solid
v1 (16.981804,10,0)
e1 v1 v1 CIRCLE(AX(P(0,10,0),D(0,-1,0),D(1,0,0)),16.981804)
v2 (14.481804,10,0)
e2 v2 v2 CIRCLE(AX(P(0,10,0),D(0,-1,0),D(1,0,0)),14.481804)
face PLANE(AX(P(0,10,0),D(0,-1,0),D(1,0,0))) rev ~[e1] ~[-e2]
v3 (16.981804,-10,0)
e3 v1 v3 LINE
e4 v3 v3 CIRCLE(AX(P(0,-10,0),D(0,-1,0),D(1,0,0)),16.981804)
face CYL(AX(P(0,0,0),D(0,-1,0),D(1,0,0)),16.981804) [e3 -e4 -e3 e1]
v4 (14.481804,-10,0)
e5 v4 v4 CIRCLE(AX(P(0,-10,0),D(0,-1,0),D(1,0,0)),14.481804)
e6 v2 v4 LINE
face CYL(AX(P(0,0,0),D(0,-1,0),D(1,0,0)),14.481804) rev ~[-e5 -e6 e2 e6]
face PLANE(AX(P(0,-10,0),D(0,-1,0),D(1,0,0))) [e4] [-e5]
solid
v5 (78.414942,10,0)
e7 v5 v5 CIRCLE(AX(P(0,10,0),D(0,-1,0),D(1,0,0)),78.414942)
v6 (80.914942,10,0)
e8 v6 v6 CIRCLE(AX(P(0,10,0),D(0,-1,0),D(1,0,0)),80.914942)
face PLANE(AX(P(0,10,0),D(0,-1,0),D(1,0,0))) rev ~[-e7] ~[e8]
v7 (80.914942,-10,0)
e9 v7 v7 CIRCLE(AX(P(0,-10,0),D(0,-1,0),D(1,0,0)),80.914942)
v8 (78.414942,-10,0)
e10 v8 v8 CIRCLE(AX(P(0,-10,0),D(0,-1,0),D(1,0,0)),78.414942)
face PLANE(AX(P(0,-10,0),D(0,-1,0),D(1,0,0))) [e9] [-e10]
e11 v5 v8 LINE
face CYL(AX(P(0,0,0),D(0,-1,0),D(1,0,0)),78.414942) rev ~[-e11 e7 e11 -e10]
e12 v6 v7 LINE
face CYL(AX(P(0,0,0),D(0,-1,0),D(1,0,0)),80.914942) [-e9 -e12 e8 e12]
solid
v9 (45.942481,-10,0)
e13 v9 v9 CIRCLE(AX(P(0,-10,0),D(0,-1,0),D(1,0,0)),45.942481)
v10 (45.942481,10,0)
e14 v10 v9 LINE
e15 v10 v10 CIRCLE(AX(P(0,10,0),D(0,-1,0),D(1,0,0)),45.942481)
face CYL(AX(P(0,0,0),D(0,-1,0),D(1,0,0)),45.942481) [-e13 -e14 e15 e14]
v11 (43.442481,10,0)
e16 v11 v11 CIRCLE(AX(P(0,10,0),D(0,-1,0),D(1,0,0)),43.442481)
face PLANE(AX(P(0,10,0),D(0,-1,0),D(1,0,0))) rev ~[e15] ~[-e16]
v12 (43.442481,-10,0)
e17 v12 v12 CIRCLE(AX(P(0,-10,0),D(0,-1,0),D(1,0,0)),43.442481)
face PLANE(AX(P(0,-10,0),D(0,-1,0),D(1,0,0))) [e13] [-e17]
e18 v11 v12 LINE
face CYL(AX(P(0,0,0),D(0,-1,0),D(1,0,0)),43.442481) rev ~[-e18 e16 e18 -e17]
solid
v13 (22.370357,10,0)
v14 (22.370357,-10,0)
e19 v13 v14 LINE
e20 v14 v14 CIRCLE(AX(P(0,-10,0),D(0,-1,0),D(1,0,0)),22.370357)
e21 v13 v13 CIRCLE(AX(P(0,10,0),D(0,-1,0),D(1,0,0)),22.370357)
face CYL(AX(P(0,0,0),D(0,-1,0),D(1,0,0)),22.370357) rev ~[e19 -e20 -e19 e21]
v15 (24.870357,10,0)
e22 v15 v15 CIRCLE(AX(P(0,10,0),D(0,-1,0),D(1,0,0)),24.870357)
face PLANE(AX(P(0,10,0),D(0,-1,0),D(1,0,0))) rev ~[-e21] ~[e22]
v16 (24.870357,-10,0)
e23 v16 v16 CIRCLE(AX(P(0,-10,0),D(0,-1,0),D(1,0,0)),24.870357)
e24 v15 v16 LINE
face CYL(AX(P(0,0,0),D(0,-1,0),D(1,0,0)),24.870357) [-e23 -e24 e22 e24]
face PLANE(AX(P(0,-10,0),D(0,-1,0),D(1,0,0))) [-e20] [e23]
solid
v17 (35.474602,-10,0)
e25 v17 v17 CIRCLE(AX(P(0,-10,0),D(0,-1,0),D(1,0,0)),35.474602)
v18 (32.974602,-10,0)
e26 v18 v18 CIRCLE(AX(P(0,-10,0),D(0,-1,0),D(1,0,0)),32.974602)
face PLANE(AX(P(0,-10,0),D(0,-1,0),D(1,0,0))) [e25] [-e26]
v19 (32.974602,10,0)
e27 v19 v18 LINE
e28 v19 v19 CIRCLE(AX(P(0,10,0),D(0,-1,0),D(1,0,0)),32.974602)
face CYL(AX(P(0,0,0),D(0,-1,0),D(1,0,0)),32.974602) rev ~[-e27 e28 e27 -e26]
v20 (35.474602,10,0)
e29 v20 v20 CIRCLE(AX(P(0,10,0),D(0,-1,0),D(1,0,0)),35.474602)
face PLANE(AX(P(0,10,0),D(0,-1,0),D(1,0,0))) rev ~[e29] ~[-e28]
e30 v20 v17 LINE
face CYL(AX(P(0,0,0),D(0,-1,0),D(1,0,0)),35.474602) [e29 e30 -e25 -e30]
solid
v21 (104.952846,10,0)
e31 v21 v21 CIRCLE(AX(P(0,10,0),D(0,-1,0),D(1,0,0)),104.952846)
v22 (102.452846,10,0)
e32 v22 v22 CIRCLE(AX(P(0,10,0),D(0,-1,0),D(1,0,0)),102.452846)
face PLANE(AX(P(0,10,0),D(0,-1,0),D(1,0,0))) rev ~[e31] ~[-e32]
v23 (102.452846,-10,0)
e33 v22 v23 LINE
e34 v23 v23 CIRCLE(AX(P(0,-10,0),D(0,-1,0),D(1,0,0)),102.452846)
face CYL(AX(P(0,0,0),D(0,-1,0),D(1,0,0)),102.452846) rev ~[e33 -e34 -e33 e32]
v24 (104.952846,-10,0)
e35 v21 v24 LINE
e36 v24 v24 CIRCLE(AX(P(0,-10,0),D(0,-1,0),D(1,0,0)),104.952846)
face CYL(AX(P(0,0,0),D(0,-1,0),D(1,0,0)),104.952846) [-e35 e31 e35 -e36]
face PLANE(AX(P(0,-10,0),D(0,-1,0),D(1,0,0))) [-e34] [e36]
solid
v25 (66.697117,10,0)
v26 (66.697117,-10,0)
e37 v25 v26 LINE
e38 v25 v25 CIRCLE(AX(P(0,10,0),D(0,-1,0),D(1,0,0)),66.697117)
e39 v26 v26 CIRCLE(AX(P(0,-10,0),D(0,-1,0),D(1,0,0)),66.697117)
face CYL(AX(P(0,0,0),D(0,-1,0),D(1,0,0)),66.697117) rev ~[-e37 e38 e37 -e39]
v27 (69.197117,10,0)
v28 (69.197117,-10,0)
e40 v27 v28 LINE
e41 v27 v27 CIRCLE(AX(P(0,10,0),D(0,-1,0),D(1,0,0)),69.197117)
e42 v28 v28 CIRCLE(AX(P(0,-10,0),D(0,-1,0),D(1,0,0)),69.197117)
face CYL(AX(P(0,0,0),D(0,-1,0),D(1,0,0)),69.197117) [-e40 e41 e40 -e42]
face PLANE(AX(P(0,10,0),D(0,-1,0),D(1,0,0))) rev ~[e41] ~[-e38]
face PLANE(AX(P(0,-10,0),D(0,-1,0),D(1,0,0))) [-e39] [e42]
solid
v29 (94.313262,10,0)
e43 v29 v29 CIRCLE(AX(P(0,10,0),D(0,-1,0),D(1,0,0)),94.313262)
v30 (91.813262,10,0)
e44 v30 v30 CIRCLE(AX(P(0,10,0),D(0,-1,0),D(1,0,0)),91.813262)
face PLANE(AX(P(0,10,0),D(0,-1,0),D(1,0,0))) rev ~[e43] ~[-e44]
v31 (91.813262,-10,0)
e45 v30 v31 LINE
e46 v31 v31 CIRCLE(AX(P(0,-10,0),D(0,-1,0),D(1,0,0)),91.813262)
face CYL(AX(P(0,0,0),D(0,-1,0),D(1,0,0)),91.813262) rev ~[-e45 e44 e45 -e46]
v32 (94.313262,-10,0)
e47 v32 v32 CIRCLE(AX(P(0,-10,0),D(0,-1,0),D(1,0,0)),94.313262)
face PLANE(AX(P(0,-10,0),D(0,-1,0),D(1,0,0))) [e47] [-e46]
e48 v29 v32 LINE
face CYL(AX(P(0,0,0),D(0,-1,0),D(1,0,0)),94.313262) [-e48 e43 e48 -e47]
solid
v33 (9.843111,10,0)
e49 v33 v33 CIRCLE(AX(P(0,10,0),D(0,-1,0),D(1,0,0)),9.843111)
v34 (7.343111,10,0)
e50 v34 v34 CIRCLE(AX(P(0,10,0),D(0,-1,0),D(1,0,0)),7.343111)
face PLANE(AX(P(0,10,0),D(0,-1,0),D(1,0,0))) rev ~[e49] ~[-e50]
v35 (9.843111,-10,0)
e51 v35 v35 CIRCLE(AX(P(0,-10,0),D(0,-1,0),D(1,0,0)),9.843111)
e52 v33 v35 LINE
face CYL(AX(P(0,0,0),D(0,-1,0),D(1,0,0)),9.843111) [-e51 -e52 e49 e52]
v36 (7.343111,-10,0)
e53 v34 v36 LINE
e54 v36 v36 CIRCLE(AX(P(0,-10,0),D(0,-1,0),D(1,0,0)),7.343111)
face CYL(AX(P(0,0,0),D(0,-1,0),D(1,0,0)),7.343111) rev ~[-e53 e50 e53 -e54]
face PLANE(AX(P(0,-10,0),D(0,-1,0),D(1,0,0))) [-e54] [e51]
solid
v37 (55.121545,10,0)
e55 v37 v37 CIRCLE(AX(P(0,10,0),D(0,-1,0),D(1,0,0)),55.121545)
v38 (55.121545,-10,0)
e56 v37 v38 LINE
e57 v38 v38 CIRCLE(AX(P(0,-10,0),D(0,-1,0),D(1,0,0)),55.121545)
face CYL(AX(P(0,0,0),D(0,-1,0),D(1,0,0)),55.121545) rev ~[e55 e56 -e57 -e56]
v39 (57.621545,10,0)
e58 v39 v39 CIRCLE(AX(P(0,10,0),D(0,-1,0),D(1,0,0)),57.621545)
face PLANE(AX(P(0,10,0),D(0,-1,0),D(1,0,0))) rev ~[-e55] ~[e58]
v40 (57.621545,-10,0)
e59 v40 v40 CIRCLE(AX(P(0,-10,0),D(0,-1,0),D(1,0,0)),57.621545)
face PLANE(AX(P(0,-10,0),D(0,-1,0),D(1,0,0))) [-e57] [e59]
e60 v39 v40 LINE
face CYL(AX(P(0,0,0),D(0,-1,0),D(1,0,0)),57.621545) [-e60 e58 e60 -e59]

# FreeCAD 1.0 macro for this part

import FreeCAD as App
import Part
import Sketcher
from FreeCAD import Vector
Q = App.Units.Quantity


def faces_at(feature, points):
    """Names of the faces that lie closest to the given points."""
    faces = feature.Shape.Faces
    near = lambda p: min(range(len(faces)), key=lambda i: faces[i].distToShape(Part.Vertex(*p))[0])
    return sorted({f"Face{near(p) + 1}" for p in points})

doc = App.newDocument("Part")
body = doc.addObject("PartDesign::Body", "Body")

sketch1 = body.newObject("Sketcher::SketchObject", "Sketch")
sketch1.AttachmentSupport = (doc.getObject("XZ_Plane"), [""])
sketch1.MapMode = "FlatFace"
sketch1.addGeometry(Part.Circle(Vector(0, 0, 0), Vector(0, 0, 1), 105), False)
sketch1.addConstraint([
    Sketcher.Constraint("Coincident", 0, 3, -1, 1),
    Sketcher.Constraint("Diameter", 0, Q("209.905692 mm")),
])
pad1 = body.newObject("PartDesign::Pad", "Pad")
pad1.Profile = sketch1
pad1.Length = 20
pad1.Midplane = True
doc.recompute()

thickness = body.newObject("PartDesign::Thickness", "Thickness")
thickness.Base = (pad1, faces_at(pad1, [(0, -10, 0), (0, 10, 0)]))
thickness.Value = 2.5
thickness.Reversed = True
thickness.Join = "Arc"
body2 = doc.addObject("PartDesign::Body", "Body001")

sketch2 = body2.newObject("Sketcher::SketchObject", "Sketch001")
sketch2.AttachmentSupport = (doc.getObject("XZ_Plane001"), [""])
sketch2.MapMode = "FlatFace"
sketch2.addGeometry(Part.Circle(Vector(0, 0, 0), Vector(0, 0, 1), 94), False)
sketch2.addConstraint([
    Sketcher.Constraint("Coincident", 0, 3, -1, 1),
    Sketcher.Constraint("Diameter", 0, Q("188.626524 mm")),
])
pad2 = body2.newObject("PartDesign::Pad", "Pad001")
pad2.Profile = sketch2
pad2.Length = 20
pad2.Midplane = True
doc.recompute()

thickness2 = body2.newObject("PartDesign::Thickness", "Thickness001")
thickness2.Base = (pad2, faces_at(pad2, [(0, -10, 0), (0, 10, 0)]))
thickness2.Value = 2.5
thickness2.Reversed = True
thickness2.Join = "Arc"
body3 = doc.addObject("PartDesign::Body", "Body002")

sketch3 = body3.newObject("Sketcher::SketchObject", "Sketch002")
sketch3.AttachmentSupport = (doc.getObject("XZ_Plane002"), [""])
sketch3.MapMode = "FlatFace"
sketch3.addGeometry(Part.Circle(Vector(0, 0, 0), Vector(0, 0, 1), 81), False)
sketch3.addConstraint([
    Sketcher.Constraint("Coincident", 0, 3, -1, 1),
    Sketcher.Constraint("Diameter", 0, Q("161.829884 mm")),
])
pad3 = body3.newObject("PartDesign::Pad", "Pad002")
pad3.Profile = sketch3
pad3.Length = 20
pad3.Midplane = True
doc.recompute()

thickness3 = body3.newObject("PartDesign::Thickness", "Thickness002")
thickness3.Base = (pad3, faces_at(pad3, [(0, -10, 0), (0, 10, 0)]))
thickness3.Value = 2.5
thickness3.Reversed = True
thickness3.Join = "Arc"
body4 = doc.addObject("PartDesign::Body", "Body003")

sketch4 = body4.newObject("Sketcher::SketchObject", "Sketch003")
sketch4.AttachmentSupport = (doc.getObject("XZ_Plane003"), [""])
sketch4.MapMode = "FlatFace"
sketch4.addGeometry(Part.Circle(Vector(0, 0, 0), Vector(0, 0, 1), 69), False)
sketch4.addConstraint([
    Sketcher.Constraint("Coincident", 0, 3, -1, 1),
    Sketcher.Constraint("Diameter", 0, Q("138.394234 mm")),
])
pad4 = body4.newObject("PartDesign::Pad", "Pad003")
pad4.Profile = sketch4
pad4.Length = 20
pad4.Midplane = True
doc.recompute()

thickness4 = body4.newObject("PartDesign::Thickness", "Thickness003")
thickness4.Base = (pad4, faces_at(pad4, [(0, -10, 0), (0, 10, 0)]))
thickness4.Value = 2.5
thickness4.Reversed = True
thickness4.Join = "Arc"
body5 = doc.addObject("PartDesign::Body", "Body004")

sketch5 = body5.newObject("Sketcher::SketchObject", "Sketch004")
sketch5.AttachmentSupport = (doc.getObject("XZ_Plane004"), [""])
sketch5.MapMode = "FlatFace"
sketch5.addGeometry(Part.Circle(Vector(0, 0, 0), Vector(0, 0, 1), 58), False)
sketch5.addConstraint([
    Sketcher.Constraint("Coincident", 0, 3, -1, 1),
    Sketcher.Constraint("Diameter", 0, Q("115.24309 mm")),
])
pad5 = body5.newObject("PartDesign::Pad", "Pad004")
pad5.Profile = sketch5
pad5.Length = 20
pad5.Midplane = True
doc.recompute()

thickness5 = body5.newObject("PartDesign::Thickness", "Thickness004")
thickness5.Base = (pad5, faces_at(pad5, [(0, -10, 0), (0, 10, 0)]))
thickness5.Value = 2.5
thickness5.Reversed = True
thickness5.Join = "Arc"
body6 = doc.addObject("PartDesign::Body", "Body005")

sketch6 = body6.newObject("Sketcher::SketchObject", "Sketch005")
sketch6.AttachmentSupport = (doc.getObject("XZ_Plane005"), [""])
sketch6.MapMode = "FlatFace"
sketch6.addGeometry(Part.Circle(Vector(0, 0, 0), Vector(0, 0, 1), 46), False)
sketch6.addConstraint([
    Sketcher.Constraint("Coincident", 0, 3, -1, 1),
    Sketcher.Constraint("Diameter", 0, Q("91.884962 mm")),
])
pad6 = body6.newObject("PartDesign::Pad", "Pad005")
pad6.Profile = sketch6
pad6.Length = 20
pad6.Midplane = True
doc.recompute()

thickness6 = body6.newObject("PartDesign::Thickness", "Thickness005")
thickness6.Base = (pad6, faces_at(pad6, [(0, -10, 0), (0, 10, 0)]))
thickness6.Value = 2.5
thickness6.Reversed = True
thickness6.Join = "Arc"
body7 = doc.addObject("PartDesign::Body", "Body006")

sketch7 = body7.newObject("Sketcher::SketchObject", "Sketch006")
sketch7.AttachmentSupport = (doc.getObject("XZ_Plane006"), [""])
sketch7.MapMode = "FlatFace"
sketch7.addGeometry(Part.Circle(Vector(0, 0, 0), Vector(0, 0, 1), 35), False)
sketch7.addConstraint([
    Sketcher.Constraint("Coincident", 0, 3, -1, 1),
    Sketcher.Constraint("Diameter", 0, Q("70.949204 mm")),
])
pad7 = body7.newObject("PartDesign::Pad", "Pad006")
pad7.Profile = sketch7
pad7.Length = 20
pad7.Midplane = True
doc.recompute()

thickness7 = body7.newObject("PartDesign::Thickness", "Thickness006")
thickness7.Base = (pad7, faces_at(pad7, [(0, -10, 0), (0, 10, 0)]))
thickness7.Value = 2.5
thickness7.Reversed = True
thickness7.Join = "Arc"
body8 = doc.addObject("PartDesign::Body", "Body007")

sketch8 = body8.newObject("Sketcher::SketchObject", "Sketch007")
sketch8.AttachmentSupport = (doc.getObject("XZ_Plane007"), [""])
sketch8.MapMode = "FlatFace"
sketch8.addGeometry(Part.Circle(Vector(0, 0, 0), Vector(0, 0, 1), 25), False)
sketch8.addConstraint([
    Sketcher.Constraint("Coincident", 0, 3, -1, 1),
    Sketcher.Constraint("Diameter", 0, Q("49.740714 mm")),
])
pad8 = body8.newObject("PartDesign::Pad", "Pad007")
pad8.Profile = sketch8
pad8.Length = 20
pad8.Midplane = True
doc.recompute()

thickness8 = body8.newObject("PartDesign::Thickness", "Thickness007")
thickness8.Base = (pad8, faces_at(pad8, [(0, -10, 0), (0, 10, 0)]))
thickness8.Value = 2.5
thickness8.Reversed = True
thickness8.Join = "Arc"
body9 = doc.addObject("PartDesign::Body", "Body008")

sketch9 = body9.newObject("Sketcher::SketchObject", "Sketch008")
sketch9.AttachmentSupport = (doc.getObject("XZ_Plane008"), [""])
sketch9.MapMode = "FlatFace"
sketch9.addGeometry(Part.Circle(Vector(0, 0, 0), Vector(0, 0, 1), 17), False)
sketch9.addConstraint([
    Sketcher.Constraint("Coincident", 0, 3, -1, 1),
    Sketcher.Constraint("Diameter", 0, Q("33.963608 mm")),
])
pad9 = body9.newObject("PartDesign::Pad", "Pad008")
pad9.Profile = sketch9
pad9.Length = 20
pad9.Midplane = True
doc.recompute()

thickness9 = body9.newObject("PartDesign::Thickness", "Thickness008")
thickness9.Base = (pad9, faces_at(pad9, [(0, -10, 0), (0, 10, 0)]))
thickness9.Value = 2.5
thickness9.Reversed = True
thickness9.Join = "Arc"
body10 = doc.addObject("PartDesign::Body", "Body009")

sketch10 = body10.newObject("Sketcher::SketchObject", "Sketch009")
sketch10.AttachmentSupport = (doc.getObject("XZ_Plane009"), [""])
sketch10.MapMode = "FlatFace"
sketch10.addGeometry(Part.Circle(Vector(0, 0, 0), Vector(0, 0, 1), 10), False)
sketch10.addConstraint([
    Sketcher.Constraint("Coincident", 0, 3, -1, 1),
    Sketcher.Constraint("Diameter", 0, Q("19.686222 mm")),
])
pad10 = body10.newObject("PartDesign::Pad", "Pad009")
pad10.Profile = sketch10
pad10.Length = 20
pad10.Midplane = True
doc.recompute()

thickness10 = body10.newObject("PartDesign::Thickness", "Thickness009")
thickness10.Base = (pad10, faces_at(pad10, [(0, -10, 0), (0, 10, 0)]))
thickness10.Value = 2.5
thickness10.Reversed = True
thickness10.Join = "Arc"

doc.recompute()
